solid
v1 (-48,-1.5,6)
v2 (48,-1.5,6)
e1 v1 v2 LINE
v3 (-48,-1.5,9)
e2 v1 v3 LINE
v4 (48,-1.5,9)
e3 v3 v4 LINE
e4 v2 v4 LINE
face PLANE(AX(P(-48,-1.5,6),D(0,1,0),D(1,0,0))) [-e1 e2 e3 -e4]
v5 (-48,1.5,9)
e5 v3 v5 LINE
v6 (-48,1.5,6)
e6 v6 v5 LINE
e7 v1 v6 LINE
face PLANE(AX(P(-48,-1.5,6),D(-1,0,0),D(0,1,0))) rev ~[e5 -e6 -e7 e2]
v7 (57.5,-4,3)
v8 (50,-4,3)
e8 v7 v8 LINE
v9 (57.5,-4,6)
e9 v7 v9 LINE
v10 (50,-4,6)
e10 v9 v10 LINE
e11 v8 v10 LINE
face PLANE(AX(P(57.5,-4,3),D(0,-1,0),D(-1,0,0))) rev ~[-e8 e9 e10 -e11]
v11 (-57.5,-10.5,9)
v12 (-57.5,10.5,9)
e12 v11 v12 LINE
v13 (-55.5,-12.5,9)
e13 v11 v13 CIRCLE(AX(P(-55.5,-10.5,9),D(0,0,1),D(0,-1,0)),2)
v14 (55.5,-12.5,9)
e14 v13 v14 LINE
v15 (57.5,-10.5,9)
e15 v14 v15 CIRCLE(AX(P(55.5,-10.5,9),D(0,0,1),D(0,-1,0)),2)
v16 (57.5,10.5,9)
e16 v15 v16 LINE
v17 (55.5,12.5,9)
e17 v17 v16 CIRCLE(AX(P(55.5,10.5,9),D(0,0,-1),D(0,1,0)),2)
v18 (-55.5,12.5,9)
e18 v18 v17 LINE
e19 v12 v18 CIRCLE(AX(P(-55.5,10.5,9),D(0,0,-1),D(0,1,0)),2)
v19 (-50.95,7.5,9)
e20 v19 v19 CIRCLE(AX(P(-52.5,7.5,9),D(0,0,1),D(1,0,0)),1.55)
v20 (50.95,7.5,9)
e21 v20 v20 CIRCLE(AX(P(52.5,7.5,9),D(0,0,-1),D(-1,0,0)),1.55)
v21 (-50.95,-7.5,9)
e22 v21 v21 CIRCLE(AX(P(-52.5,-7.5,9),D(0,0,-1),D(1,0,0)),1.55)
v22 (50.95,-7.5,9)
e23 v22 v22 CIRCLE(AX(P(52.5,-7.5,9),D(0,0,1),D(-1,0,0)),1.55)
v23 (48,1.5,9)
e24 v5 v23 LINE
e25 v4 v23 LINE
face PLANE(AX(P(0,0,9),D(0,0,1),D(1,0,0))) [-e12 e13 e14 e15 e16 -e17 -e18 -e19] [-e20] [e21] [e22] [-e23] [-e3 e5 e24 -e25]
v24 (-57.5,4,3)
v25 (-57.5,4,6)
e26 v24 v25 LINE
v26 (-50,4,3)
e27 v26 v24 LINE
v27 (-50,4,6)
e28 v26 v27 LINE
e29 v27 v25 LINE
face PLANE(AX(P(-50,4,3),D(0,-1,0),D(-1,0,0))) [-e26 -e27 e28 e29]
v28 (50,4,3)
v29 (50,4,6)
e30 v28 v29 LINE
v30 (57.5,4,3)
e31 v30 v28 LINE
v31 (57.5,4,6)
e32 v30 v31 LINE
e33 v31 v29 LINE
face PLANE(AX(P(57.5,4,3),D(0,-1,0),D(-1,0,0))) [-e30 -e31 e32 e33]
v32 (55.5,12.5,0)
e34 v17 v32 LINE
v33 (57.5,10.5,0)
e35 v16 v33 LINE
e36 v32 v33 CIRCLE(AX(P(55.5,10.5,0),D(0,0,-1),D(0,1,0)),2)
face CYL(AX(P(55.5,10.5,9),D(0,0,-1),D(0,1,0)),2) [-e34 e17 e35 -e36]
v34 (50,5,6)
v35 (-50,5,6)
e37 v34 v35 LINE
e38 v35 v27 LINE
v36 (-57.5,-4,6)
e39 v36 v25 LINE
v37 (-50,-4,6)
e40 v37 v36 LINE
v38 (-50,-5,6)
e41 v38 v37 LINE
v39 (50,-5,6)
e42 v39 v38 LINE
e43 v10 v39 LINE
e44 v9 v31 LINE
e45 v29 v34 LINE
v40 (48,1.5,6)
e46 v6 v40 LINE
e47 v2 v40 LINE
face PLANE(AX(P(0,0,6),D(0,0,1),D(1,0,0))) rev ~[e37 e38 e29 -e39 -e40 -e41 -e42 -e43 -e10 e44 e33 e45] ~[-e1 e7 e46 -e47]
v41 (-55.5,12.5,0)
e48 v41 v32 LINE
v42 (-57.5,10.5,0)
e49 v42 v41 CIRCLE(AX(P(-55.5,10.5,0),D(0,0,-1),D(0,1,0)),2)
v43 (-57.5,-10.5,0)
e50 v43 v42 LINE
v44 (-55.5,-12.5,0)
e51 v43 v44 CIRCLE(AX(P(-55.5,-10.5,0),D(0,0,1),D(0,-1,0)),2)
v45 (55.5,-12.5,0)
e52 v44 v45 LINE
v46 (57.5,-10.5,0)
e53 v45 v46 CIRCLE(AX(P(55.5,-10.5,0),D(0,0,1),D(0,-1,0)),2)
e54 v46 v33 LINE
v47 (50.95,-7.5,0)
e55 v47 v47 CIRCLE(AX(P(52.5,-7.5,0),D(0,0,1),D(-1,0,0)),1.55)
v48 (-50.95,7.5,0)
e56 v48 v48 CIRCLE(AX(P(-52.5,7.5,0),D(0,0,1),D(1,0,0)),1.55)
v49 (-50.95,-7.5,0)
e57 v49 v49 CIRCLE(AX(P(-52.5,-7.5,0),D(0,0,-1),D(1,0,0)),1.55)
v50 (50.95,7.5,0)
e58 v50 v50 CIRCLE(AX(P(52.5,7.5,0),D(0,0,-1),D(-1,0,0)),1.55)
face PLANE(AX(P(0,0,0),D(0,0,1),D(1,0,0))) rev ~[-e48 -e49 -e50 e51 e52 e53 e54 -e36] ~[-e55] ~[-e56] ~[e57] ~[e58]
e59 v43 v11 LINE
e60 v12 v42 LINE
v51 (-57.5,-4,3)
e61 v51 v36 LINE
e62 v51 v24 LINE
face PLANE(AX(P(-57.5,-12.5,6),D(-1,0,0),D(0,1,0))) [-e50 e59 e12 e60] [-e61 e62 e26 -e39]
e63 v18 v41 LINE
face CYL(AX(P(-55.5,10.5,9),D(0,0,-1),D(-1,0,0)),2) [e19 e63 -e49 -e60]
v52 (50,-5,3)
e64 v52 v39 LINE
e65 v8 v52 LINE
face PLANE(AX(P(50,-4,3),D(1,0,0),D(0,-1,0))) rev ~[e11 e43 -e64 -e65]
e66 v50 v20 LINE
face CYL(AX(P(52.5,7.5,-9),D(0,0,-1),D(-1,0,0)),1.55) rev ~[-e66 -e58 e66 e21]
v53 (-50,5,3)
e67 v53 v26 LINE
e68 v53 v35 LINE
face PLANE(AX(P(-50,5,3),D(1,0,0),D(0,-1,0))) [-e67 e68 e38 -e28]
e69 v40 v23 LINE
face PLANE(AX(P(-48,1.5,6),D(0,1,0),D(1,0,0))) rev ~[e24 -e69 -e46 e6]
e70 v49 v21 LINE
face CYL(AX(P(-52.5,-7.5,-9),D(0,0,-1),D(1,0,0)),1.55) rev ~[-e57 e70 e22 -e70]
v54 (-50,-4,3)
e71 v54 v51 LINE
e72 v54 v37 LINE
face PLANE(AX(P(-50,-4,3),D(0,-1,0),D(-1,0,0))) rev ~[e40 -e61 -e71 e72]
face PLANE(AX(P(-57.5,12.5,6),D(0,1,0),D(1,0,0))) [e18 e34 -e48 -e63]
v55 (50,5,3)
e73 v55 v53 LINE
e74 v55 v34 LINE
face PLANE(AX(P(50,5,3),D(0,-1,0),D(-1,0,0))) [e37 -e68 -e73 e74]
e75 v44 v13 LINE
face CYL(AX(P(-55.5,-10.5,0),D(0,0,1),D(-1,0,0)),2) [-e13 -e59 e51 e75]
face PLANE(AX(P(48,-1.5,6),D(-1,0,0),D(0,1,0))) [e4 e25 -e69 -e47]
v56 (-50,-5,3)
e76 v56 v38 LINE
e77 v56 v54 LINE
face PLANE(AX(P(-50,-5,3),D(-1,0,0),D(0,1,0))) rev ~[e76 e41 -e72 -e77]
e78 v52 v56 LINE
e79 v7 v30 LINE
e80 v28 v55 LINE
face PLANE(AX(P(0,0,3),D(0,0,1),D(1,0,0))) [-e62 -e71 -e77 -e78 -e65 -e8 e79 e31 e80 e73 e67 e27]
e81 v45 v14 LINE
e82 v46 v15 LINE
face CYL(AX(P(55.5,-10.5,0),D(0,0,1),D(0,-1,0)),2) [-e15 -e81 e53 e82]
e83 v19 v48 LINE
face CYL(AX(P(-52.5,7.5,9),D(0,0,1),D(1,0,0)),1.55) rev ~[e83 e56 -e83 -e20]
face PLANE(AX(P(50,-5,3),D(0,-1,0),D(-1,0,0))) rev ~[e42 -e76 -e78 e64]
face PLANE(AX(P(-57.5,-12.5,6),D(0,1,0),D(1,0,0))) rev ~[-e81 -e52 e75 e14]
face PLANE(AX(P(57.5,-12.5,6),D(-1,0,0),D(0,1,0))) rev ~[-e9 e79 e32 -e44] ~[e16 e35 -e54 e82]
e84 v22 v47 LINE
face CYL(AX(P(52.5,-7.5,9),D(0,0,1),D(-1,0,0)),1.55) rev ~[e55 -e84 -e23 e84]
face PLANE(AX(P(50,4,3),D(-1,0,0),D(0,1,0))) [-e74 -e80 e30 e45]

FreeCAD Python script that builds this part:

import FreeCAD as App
import Part
import Sketcher

V = App.Vector
Q = App.Units.Quantity


def edges_at(feature, points):
    """Names of the edges that pass closest to the given points."""
    edges = feature.Shape.Edges
    near = lambda p: min(range(len(edges)), key=lambda i: edges[i].distToShape(Part.Vertex(*p))[0])
    return sorted({f"Edge{near(p) + 1}" for p in points})


def add_polygon(sketch, points):
    """Adds a closed chain of lines whose ends are joined by coincident constraints."""
    first, n = sketch.GeometryCount, len(points)
    for a, b in zip(points, points[1:] + points[:1]):
        sketch.addGeometry(Part.LineSegment(App.Vector(*a, 0), App.Vector(*b, 0)), False)
    for i in range(n):
        sketch.addConstraint(Sketcher.Constraint("Coincident", first + i, 2, first + (i + 1) % n, 1))

doc = App.newDocument("Part")
body = doc.addObject("PartDesign::Body", "Body")

# Sketch on XY plane
sketch1 = doc.addObject("Sketcher::SketchObject", "Sketch")
body.addObject(sketch1)
sketch1.AttachmentSupport = (doc.XY_Plane, [""])
sketch1.MapMode = "FlatFace"
add_polygon(sketch1, [(-58, 12), (-58, -12), (58, -12), (58, 12)])  # lines 0-3
sketch1.addConstraint([
    Sketcher.Constraint("Vertical", 0),
    Sketcher.Constraint("Horizontal", 1),
    Sketcher.Constraint("Vertical", 2),
    Sketcher.Constraint("Horizontal", 3),
    Sketcher.Constraint("Symmetric", 0, 2, 2, 2, -1, 1),
    Sketcher.Constraint("DistanceX", 1, 1, 1, 2, Q("115 mm")),
    Sketcher.Constraint("DistanceY", 0, 2, 0, 1, Q("25 mm")),
])
pad1 = doc.addObject("PartDesign::Pad", "Pad")
body.addObject(pad1)
pad1.Profile = sketch1
pad1.Length = 3

# Sketch on XY plane
sketch2 = doc.addObject("Sketcher::SketchObject", "Sketch001")
body.addObject(sketch2)
sketch2.AttachmentSupport = (doc.XY_Plane, [""])
sketch2.MapMode = "FlatFace"
sketch2.AttachmentOffset = App.Placement(V(0, 0, 3), App.Rotation())
add_polygon(sketch2, [(57.5, 12.5), (-57.5, 12.5), (-57.5, 4), (-50, 4), (-50, 5), (50, 5), (50, 4), (57.5, 4)])  # lines 0-7
add_polygon(sketch2, [(-57.5, -12.5), (57.5, -12.5), (57.5, -4), (50, -4), (50, -5), (-50, -5), (-50, -4), (-57.5, -4)])  # lines 8-15
sketch2.addConstraint([
    Sketcher.Constraint("Horizontal", 0),
    Sketcher.Constraint("Vertical", 1),
    Sketcher.Constraint("Horizontal", 2),
    Sketcher.Constraint("Vertical", 3),
    Sketcher.Constraint("Horizontal", 4),
    Sketcher.Constraint("Vertical", 5),
    Sketcher.Constraint("Horizontal", 6),
    Sketcher.Constraint("Vertical", 7),
    Sketcher.Constraint("Horizontal", 8),
    Sketcher.Constraint("Vertical", 9),
    Sketcher.Constraint("Horizontal", 10),
    Sketcher.Constraint("Vertical", 11),
    Sketcher.Constraint("Horizontal", 12),
    Sketcher.Constraint("Vertical", 13),
    Sketcher.Constraint("Horizontal", 14),
    Sketcher.Constraint("Vertical", 15),
    Sketcher.Constraint("Symmetric", 0, 2, 8, 2, -1, 1),
    Sketcher.Constraint("Symmetric", 2, 2, 10, 2, -1, 1),
    Sketcher.Constraint("Symmetric", 4, 2, 12, 2, -1, 1),
    Sketcher.Constraint("Symmetric", 6, 2, 14, 2, -1, 1),
    Sketcher.Constraint("Symmetric", 2, 2, 5, 2, -2),
    Sketcher.Constraint("Vertical", 7, 2, 8, 2),
    Sketcher.Constraint("DistanceX", 0, 2, 0, 1, Q("115 mm")),
    Sketcher.Constraint("DistanceX", 4, 1, 4, 2, Q("100 mm")),
    Sketcher.Constraint("DistanceY", 3, 1, 3, 2, Q("1 mm")),
    Sketcher.Constraint("DistanceY", 1, 2, 1, 1, Q("8.5 mm")),
    Sketcher.Constraint("DistanceY", -1, 1, 1, 2, Q("4 mm")),
])
pad2 = doc.addObject("PartDesign::Pad", "Pad001")
body.addObject(pad2)
pad2.Profile = sketch2
pad2.Length = 3

# Sketch on XY plane
sketch3 = doc.addObject("Sketcher::SketchObject", "Sketch002")
body.addObject(sketch3)
sketch3.AttachmentSupport = (doc.XY_Plane, [""])
sketch3.MapMode = "FlatFace"
sketch3.AttachmentOffset = App.Placement(V(0, 0, 6), App.Rotation())
add_polygon(sketch3, [(-57.5, 12.5), (-57.5, -12.5), (57.5, -12.5), (57.5, 12.5)])  # lines 0-3
add_polygon(sketch3, [(48, -1.5), (-48, -1.5), (-48, 1.5), (48, 1.5)])  # lines 4-7
sketch3.addConstraint([
    Sketcher.Constraint("Vertical", 0),
    Sketcher.Constraint("Horizontal", 1),
    Sketcher.Constraint("Vertical", 2),
    Sketcher.Constraint("Horizontal", 3),
    Sketcher.Constraint("Horizontal", 4),
    Sketcher.Constraint("Vertical", 5),
    Sketcher.Constraint("Horizontal", 6),
    Sketcher.Constraint("Vertical", 7),
    Sketcher.Constraint("Symmetric", 0, 2, 2, 2, -1, 1),
    Sketcher.Constraint("Symmetric", 4, 2, 6, 2, -1, 1),
    Sketcher.Constraint("DistanceX", 1, 1, 1, 2, Q("115 mm")),
    Sketcher.Constraint("DistanceX", 4, 2, 4, 1, Q("96 mm")),
    Sketcher.Constraint("DistanceY", 0, 2, 0, 1, Q("25 mm")),
    Sketcher.Constraint("DistanceY", 5, 1, 5, 2, Q("3 mm")),
])
pad3 = doc.addObject("PartDesign::Pad", "Pad002")
body.addObject(pad3)
pad3.Profile = sketch3
pad3.Length = 3

# Sketch on XY plane
sketch4 = doc.addObject("Sketcher::SketchObject", "Sketch003")
body.addObject(sketch4)
sketch4.AttachmentSupport = (doc.XY_Plane, [""])
sketch4.MapMode = "FlatFace"
sketch4.AttachmentOffset = App.Placement(V(0, 0, 9), App.Rotation())
sketch4.addGeometry(Part.Circle(V(-52.5, 7.5, 0), V(0, 0, 1), 1.6), False)
sketch4.addConstraint([
    Sketcher.Constraint("Diameter", 0, Q("3.1 mm")),
    Sketcher.Constraint("DistanceX", 0, 3, -1, 1, Q("52.5 mm")),
    Sketcher.Constraint("DistanceY", -1, 1, 0, 3, Q("7.5 mm")),
])
pocket1 = doc.addObject("PartDesign::Pocket", "Pocket")
body.addObject(pocket1)
pocket1.Profile = sketch4
pocket1.Type = "ThroughAll"
doc.recompute()

polarpattern = doc.addObject("PartDesign::PolarPattern", "PolarPattern")
body.addObject(polarpattern)
polarpattern.Originals = [pocket1]
polarpattern.Axis = (doc.Y_Axis, [""])
polarpattern.Angle = 360
polarpattern.Occurrences = 2
body.Tip = polarpattern
doc.recompute()

polarpattern2 = doc.addObject("PartDesign::PolarPattern", "PolarPattern001")
body.addObject(polarpattern2)
polarpattern2.Originals = [pocket1]
polarpattern2.Axis = (doc.X_Axis, [""])
polarpattern2.Angle = 360
polarpattern2.Occurrences = 2
body.Tip = polarpattern2
doc.recompute()

polarpattern3 = doc.addObject("PartDesign::PolarPattern", "PolarPattern002")
body.addObject(polarpattern3)
polarpattern3.Originals = [pocket1]
polarpattern3.Axis = (doc.Z_Axis, [""])
polarpattern3.Angle = 360
polarpattern3.Occurrences = 2
body.Tip = polarpattern3
doc.recompute()

fillet = doc.addObject("PartDesign::Fillet", "Fillet")
body.addObject(fillet)
fillet.Base = (polarpattern3, edges_at(polarpattern3, [
    (57.5, 12.5, 4.5),
    (57.5, 12.5, 4.5),
    (57.5, 12.5, 4.5),
    (57.5, -12.5, 4.5),
    (-57.5, 12.5, 4.5),
    (-57.5, -12.5, 4.5),
]))
fillet.Radius = 2

doc.recompute()
